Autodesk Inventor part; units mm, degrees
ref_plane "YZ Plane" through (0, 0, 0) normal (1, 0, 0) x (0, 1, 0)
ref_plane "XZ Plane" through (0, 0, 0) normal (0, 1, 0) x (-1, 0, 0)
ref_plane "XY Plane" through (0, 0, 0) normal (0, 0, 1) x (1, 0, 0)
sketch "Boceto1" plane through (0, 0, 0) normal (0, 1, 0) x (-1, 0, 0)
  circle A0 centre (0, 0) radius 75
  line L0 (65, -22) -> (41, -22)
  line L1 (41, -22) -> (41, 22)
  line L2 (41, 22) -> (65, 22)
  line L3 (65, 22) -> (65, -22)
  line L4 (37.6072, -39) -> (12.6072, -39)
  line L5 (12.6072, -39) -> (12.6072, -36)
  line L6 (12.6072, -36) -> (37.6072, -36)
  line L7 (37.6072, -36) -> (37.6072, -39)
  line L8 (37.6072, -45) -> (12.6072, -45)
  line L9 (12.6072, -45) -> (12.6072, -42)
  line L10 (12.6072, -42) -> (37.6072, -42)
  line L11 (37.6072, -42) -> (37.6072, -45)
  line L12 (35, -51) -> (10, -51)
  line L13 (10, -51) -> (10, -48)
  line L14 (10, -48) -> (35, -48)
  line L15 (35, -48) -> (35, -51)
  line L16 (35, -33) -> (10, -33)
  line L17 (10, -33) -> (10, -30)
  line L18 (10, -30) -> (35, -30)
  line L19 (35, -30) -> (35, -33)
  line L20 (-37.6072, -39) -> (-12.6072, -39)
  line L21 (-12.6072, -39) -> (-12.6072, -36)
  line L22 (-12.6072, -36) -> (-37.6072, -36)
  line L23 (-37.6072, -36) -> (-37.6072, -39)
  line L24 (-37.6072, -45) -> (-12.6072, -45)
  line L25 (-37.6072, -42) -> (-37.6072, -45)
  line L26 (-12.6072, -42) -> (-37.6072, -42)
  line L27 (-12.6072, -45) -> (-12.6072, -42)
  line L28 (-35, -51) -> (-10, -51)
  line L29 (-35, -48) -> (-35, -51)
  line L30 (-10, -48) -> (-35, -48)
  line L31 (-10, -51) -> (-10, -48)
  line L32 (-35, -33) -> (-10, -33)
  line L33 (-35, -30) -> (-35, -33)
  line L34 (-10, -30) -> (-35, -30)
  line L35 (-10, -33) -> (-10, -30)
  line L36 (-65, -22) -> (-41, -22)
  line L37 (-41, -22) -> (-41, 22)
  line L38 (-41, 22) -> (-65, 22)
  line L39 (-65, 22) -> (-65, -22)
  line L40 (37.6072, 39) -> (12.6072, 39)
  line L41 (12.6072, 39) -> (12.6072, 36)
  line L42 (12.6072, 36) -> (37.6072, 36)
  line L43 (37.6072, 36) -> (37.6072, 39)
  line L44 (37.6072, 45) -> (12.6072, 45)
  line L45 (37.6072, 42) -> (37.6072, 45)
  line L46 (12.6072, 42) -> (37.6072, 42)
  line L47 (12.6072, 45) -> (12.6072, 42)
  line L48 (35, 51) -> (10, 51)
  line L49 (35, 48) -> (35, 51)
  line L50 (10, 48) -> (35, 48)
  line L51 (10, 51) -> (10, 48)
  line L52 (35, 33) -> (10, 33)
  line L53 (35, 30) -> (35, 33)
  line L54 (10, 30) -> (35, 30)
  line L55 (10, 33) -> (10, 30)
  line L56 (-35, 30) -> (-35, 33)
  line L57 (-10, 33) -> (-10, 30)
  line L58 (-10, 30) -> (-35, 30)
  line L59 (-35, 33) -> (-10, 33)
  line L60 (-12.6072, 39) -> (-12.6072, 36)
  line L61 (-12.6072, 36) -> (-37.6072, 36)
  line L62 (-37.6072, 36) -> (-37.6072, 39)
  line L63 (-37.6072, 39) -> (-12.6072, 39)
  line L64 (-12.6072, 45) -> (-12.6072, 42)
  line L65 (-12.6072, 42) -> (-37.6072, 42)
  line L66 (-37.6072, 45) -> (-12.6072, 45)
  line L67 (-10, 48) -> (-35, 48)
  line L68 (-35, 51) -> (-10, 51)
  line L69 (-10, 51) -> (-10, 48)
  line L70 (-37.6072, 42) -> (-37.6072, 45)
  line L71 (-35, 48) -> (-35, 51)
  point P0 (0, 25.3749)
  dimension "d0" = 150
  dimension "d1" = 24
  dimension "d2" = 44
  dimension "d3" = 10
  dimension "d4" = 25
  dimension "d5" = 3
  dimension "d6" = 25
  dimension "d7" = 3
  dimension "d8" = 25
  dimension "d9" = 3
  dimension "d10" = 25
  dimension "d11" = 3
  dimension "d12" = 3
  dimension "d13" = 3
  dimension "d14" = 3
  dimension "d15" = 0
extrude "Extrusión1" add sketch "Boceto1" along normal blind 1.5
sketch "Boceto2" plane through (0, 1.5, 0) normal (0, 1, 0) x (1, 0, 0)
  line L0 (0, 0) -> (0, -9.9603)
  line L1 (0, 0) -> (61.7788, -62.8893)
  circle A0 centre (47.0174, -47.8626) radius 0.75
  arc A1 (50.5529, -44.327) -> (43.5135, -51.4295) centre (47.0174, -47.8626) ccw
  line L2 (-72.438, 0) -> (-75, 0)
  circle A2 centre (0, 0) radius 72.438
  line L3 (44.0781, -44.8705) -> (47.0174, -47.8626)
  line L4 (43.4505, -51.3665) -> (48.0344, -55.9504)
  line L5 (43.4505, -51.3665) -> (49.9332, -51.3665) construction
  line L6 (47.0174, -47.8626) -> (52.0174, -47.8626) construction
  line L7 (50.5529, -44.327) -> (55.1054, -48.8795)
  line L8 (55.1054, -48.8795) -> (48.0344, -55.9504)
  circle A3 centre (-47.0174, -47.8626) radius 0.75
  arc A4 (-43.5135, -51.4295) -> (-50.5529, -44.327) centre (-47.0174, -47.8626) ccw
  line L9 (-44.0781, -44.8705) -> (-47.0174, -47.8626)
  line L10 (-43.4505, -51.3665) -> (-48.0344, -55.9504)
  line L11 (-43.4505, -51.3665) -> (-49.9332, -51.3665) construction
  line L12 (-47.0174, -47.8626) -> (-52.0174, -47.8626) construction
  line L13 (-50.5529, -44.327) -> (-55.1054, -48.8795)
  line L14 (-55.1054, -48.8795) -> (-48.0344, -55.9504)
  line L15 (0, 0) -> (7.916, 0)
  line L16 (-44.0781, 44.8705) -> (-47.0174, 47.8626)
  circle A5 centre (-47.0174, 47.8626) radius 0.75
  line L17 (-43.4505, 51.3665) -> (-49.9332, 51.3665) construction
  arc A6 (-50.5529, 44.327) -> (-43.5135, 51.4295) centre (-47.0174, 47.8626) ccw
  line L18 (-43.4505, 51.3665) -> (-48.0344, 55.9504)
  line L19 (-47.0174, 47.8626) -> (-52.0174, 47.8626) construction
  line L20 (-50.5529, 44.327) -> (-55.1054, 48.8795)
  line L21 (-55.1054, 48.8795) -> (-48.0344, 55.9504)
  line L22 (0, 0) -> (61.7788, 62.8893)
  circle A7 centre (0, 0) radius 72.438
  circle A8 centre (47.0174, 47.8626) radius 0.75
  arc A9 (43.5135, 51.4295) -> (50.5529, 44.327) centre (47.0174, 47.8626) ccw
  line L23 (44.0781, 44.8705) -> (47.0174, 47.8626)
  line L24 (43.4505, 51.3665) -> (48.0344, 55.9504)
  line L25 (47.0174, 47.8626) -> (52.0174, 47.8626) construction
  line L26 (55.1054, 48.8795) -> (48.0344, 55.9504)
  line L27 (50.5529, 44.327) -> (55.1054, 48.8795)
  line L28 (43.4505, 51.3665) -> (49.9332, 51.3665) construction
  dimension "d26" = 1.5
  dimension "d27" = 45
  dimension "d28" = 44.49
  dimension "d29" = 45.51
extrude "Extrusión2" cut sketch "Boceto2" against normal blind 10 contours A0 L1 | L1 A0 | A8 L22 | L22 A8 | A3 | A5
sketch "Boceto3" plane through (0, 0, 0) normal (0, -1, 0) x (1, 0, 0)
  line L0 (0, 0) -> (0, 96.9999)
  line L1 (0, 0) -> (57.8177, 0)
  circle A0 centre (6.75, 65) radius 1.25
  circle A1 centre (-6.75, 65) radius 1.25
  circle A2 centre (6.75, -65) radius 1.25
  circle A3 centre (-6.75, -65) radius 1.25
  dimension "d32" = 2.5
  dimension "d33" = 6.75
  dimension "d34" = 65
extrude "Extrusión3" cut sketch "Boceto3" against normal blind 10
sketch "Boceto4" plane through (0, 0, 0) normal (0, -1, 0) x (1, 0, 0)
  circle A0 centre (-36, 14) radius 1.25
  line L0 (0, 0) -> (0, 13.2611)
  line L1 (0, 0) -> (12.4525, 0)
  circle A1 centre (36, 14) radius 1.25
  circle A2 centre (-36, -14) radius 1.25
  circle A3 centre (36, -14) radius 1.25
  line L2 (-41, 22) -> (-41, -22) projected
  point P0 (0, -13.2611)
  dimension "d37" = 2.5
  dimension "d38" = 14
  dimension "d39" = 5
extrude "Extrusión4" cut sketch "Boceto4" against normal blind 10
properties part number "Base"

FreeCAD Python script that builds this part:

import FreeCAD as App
import Part
import Sketcher
from FreeCAD import Vector


def add_polygon(sketch, points):
    """Adds a closed chain of lines whose ends are joined by coincident constraints."""
    first, n = sketch.GeometryCount, len(points)
    for a, b in zip(points, points[1:] + points[:1]):
        sketch.addGeometry(Part.LineSegment(App.Vector(*a, 0), App.Vector(*b, 0)), False)
    for i in range(n):
        sketch.addConstraint(Sketcher.Constraint("Coincident", first + i, 2, first + (i + 1) % n, 1))

doc = App.newDocument("Part")
body = doc.addObject("PartDesign::Body", "Body")

# Sketch on XZ plane
sketch1 = doc.addObject("Sketcher::SketchObject", "Sketch")
body.addObject(sketch1)
sketch1.AttachmentSupport = (doc.XZ_Plane, [""])
sketch1.MapMode = "FlatFace"
sketch1.addGeometry(Part.Circle(Vector(0, 0, 0), Vector(0, 0, 1), 75), False)  # 0
add_polygon(sketch1, [(10, -51), (35, -51), (35, -48), (10, -48)])  # lines 1-4
add_polygon(sketch1, [(12.6, -45), (37.6, -45), (37.6, -42), (12.6, -42)])  # lines 5-8
add_polygon(sketch1, [(12.6, -39), (37.6, -39), (37.6, -36), (12.6, -36)])  # lines 9-12
add_polygon(sketch1, [(10, -33), (35, -33), (35, -30), (10, -30)])  # lines 13-16
add_polygon(sketch1, [(-35, -48), (-35, -51), (-10, -51), (-10, -48)])  # lines 17-20
add_polygon(sketch1, [(-37.6, -42), (-37.6, -45), (-12.6, -45), (-12.6, -42)])  # lines 21-24
add_polygon(sketch1, [(-37.6, -36), (-37.6, -39), (-12.6, -39), (-12.6, -36)])  # lines 25-28
add_polygon(sketch1, [(-35, -30), (-35, -33), (-10, -33), (-10, -30)])  # lines 29-32
add_polygon(sketch1, [(41, -22), (65, -22), (65, 22), (41, 22)])  # lines 33-36
add_polygon(sketch1, [(10, 30), (35, 30), (35, 33), (10, 33)])  # lines 37-40
add_polygon(sketch1, [(37.6, 39), (12.6, 39), (12.6, 36), (37.6, 36)])  # lines 41-44
add_polygon(sketch1, [(37.6, 45), (12.6, 45), (12.6, 42), (37.6, 42)])  # lines 45-48
add_polygon(sketch1, [(10, 51), (10, 48), (35, 48), (35, 51)])  # lines 49-52
add_polygon(sketch1, [(-10, 33), (-35, 33), (-35, 30), (-10, 30)])  # lines 53-56
add_polygon(sketch1, [(-65, 22), (-65, -22), (-41, -22), (-41, 22)])  # lines 57-60
add_polygon(sketch1, [(-12.6, 39), (-37.6, 39), (-37.6, 36), (-12.6, 36)])  # lines 61-64
add_polygon(sketch1, [(-12.6, 45), (-37.6, 45), (-37.6, 42), (-12.6, 42)])  # lines 65-68
add_polygon(sketch1, [(-10, 51), (-35, 51), (-35, 48), (-10, 48)])  # lines 69-72
sketch1.addConstraint([
    Sketcher.Constraint("Horizontal", 1),
    Sketcher.Constraint("Vertical", 2),
    Sketcher.Constraint("Horizontal", 3),
    Sketcher.Constraint("Vertical", 4),
    Sketcher.Constraint("Horizontal", 5),
    Sketcher.Constraint("Vertical", 6),
    Sketcher.Constraint("Horizontal", 7),
    Sketcher.Constraint("Vertical", 8),
    Sketcher.Constraint("Horizontal", 9),
    Sketcher.Constraint("Vertical", 10),
    Sketcher.Constraint("Horizontal", 11),
    Sketcher.Constraint("Vertical", 12),
    Sketcher.Constraint("Horizontal", 13),
    Sketcher.Constraint("Vertical", 14),
    Sketcher.Constraint("Horizontal", 15),
    Sketcher.Constraint("Vertical", 16),
    Sketcher.Constraint("Vertical", 17),
    Sketcher.Constraint("Horizontal", 18),
    Sketcher.Constraint("Vertical", 19),
    Sketcher.Constraint("Horizontal", 20),
    Sketcher.Constraint("Vertical", 21),
    Sketcher.Constraint("Horizontal", 22),
    Sketcher.Constraint("Vertical", 23),
    Sketcher.Constraint("Horizontal", 24),
    Sketcher.Constraint("Vertical", 25),
    Sketcher.Constraint("Horizontal", 26),
    Sketcher.Constraint("Vertical", 27),
    Sketcher.Constraint("Horizontal", 28),
    Sketcher.Constraint("Vertical", 29),
    Sketcher.Constraint("Horizontal", 30),
    Sketcher.Constraint("Vertical", 31),
    Sketcher.Constraint("Horizontal", 32),
    Sketcher.Constraint("Horizontal", 33),
    Sketcher.Constraint("Vertical", 34),
    Sketcher.Constraint("Horizontal", 35),
    Sketcher.Constraint("Vertical", 36),
    Sketcher.Constraint("Horizontal", 37),
    Sketcher.Constraint("Vertical", 38),
    Sketcher.Constraint("Horizontal", 39),
    Sketcher.Constraint("Vertical", 40),
    Sketcher.Constraint("Horizontal", 41),
    Sketcher.Constraint("Vertical", 42),
    Sketcher.Constraint("Horizontal", 43),
    Sketcher.Constraint("Vertical", 44),
    Sketcher.Constraint("Horizontal", 45),
    Sketcher.Constraint("Vertical", 46),
    Sketcher.Constraint("Horizontal", 47),
    Sketcher.Constraint("Vertical", 48),
    Sketcher.Constraint("Vertical", 49),
    Sketcher.Constraint("Horizontal", 50),
    Sketcher.Constraint("Vertical", 51),
    Sketcher.Constraint("Horizontal", 52),
    Sketcher.Constraint("Horizontal", 53),
    Sketcher.Constraint("Vertical", 54),
    Sketcher.Constraint("Horizontal", 55),
    Sketcher.Constraint("Vertical", 56),
    Sketcher.Constraint("Vertical", 57),
    Sketcher.Constraint("Horizontal", 58),
    Sketcher.Constraint("Vertical", 59),
    Sketcher.Constraint("Horizontal", 60),
    Sketcher.Constraint("Horizontal", 61),
    Sketcher.Constraint("Vertical", 62),
    Sketcher.Constraint("Horizontal", 63),
    Sketcher.Constraint("Vertical", 64),
    Sketcher.Constraint("Horizontal", 65),
    Sketcher.Constraint("Vertical", 66),
    Sketcher.Constraint("Horizontal", 67),
    Sketcher.Constraint("Vertical", 68),
    Sketcher.Constraint("Horizontal", 69),
    Sketcher.Constraint("Vertical", 70),
    Sketcher.Constraint("Horizontal", 71),
    Sketcher.Constraint("Vertical", 72),
    Sketcher.Constraint("Coincident", 0, 3, -1, 1),
    Sketcher.Constraint("Symmetric", 32, 2, 37, 2, -1, 1),
    Sketcher.Constraint("Symmetric", 30, 2, 39, 2, -1, 1),
    Sketcher.Constraint("Symmetric", 26, 2, 41, 2, -1, 1),
    Sketcher.Constraint("Symmetric", 28, 2, 43, 2, -1, 1),
    Sketcher.Constraint("Symmetric", 22, 2, 45, 2, -1, 1),
    Sketcher.Constraint("Symmetric", 24, 2, 47, 2, -1, 1),
    Sketcher.Constraint("Symmetric", 19, 2, 49, 2, -1, 1),
    Sketcher.Constraint("Symmetric", 17, 2, 51, 2, -1, 1),
    Sketcher.Constraint("Symmetric", 13, 2, 53, 2, -1, 1),
    Sketcher.Constraint("Symmetric", 15, 2, 55, 2, -1, 1),
    Sketcher.Constraint("Symmetric", 34, 2, 57, 2, -1, 1),
    Sketcher.Constraint("Symmetric", 36, 2, 59, 2, -1, 1),
    Sketcher.Constraint("Symmetric", 9, 2, 61, 2, -1, 1),
    Sketcher.Constraint("Symmetric", 11, 2, 63, 2, -1, 1),
    Sketcher.Constraint("Symmetric", 5, 2, 65, 2, -1, 1),
    Sketcher.Constraint("Symmetric", 7, 2, 67, 2, -1, 1),
    Sketcher.Constraint("Symmetric", 1, 2, 69, 2, -1, 1),
    Sketcher.Constraint("Symmetric", 3, 2, 71, 2, -1, 1),
    Sketcher.Constraint("Symmetric", 1, 2, 17, 2, -2),
    Sketcher.Constraint("Symmetric", 3, 2, 19, 2, -2),
    Sketcher.Constraint("Symmetric", 5, 2, 21, 2, -2),
    Sketcher.Constraint("Symmetric", 7, 2, 23, 2, -2),
    Sketcher.Constraint("Symmetric", 9, 2, 25, 2, -2),
    Sketcher.Constraint("Symmetric", 11, 2, 27, 2, -2),
    Sketcher.Constraint("Symmetric", 13, 2, 29, 2, -2),
    Sketcher.Constraint("Symmetric", 15, 2, 31, 2, -2),
    Sketcher.Constraint("Horizontal", 36, 2, 57, 2),
    Sketcher.Constraint("Vertical", 6, 2, 9, 2),
    Sketcher.Constraint("Vertical", 8, 2, 11, 2),
    Sketcher.Constraint("Vertical", 2, 2, 13, 2),
    Sketcher.Constraint("Vertical", 4, 2, 15, 2),
    Sketcher.Constraint("Equal", 3, 5),
    Sketcher.Constraint("Equal", 4, 6),
    Sketcher.Constraint("Equal", 8, 10),
    Sketcher.Constraint("Equal", 12, 14),
    Sketcher.Constraint("Diameter", 0, 150.0),
    Sketcher.Constraint("DistanceX", 1, 1, 1, 2, 25.0),
    Sketcher.Constraint("DistanceX", 33, 1, 33, 2, 24.0),
    Sketcher.Constraint("DistanceY", 2, 1, 2, 2, 3.0),
    Sketcher.Constraint("DistanceY", 34, 1, 34, 2, 44.0),
    Sketcher.Constraint("DistanceX", -1, 1, 3, 2, 10.0),
    Sketcher.Constraint("DistanceY", 1, 2, -1, 1, 51.0),
    Sketcher.Constraint("DistanceY", 5, 2, -1, 1, 45.0),
    Sketcher.Constraint("DistanceY", 9, 2, -1, 1, 39.0),
    Sketcher.Constraint("DistanceY", 13, 2, -1, 1, 33.0),
    Sketcher.Constraint("DistanceX", -1, 1, 33, 2, 65.0),
    Sketcher.Constraint("DistanceX", -1, 1, 5, 2, 37.6072),
])
pad1 = doc.addObject("PartDesign::Pad", "Pad")
body.addObject(pad1)
pad1.Profile = sketch1
pad1.Length = 1.5
pad1.Reversed = True

# Sketch on XZ plane
sketch2 = doc.addObject("Sketcher::SketchObject", "Sketch001")
body.addObject(sketch2)
sketch2.AttachmentSupport = (doc.XZ_Plane, [""])
sketch2.MapMode = "FlatFace"
sketch2.AttachmentOffset = App.Placement(Vector(0, 0, -1.5), App.Rotation())
sketch2.addGeometry([
    Part.Circle(Vector(47, 47.9, 0), Vector(0, 0, 1), 0.8),
    Part.Circle(Vector(47, -47.9, 0), Vector(0, 0, 1), 0.8),
    Part.Circle(Vector(-47, 47.9, 0), Vector(0, 0, 1), 0.8),
    Part.Circle(Vector(-47, -47.9, 0), Vector(0, 0, 1), 0.8),
], False)
sketch2.addConstraint([
    Sketcher.Constraint("Equal", 0, 1),
    Sketcher.Constraint("Equal", 1, 2),
    Sketcher.Constraint("Equal", 2, 3),
    Sketcher.Constraint("Symmetric", 1, 3, 2, 3, -1, 1),
    Sketcher.Constraint("Symmetric", 0, 3, 3, 3, -1, 1),
    Sketcher.Constraint("Symmetric", 0, 3, 2, 3, -2),
    Sketcher.Constraint("Diameter", 0, 1.5),
    Sketcher.Constraint("DistanceX", -1, 1, 0, 3, 47.0174),
    Sketcher.Constraint("DistanceY", -1, 1, 0, 3, 47.8626),
])
pocket1 = doc.addObject("PartDesign::Pocket", "Pocket")
body.addObject(pocket1)
pocket1.Profile = sketch2
pocket1.Length = 10
pocket1.Reversed = True

# Sketch on XZ plane
sketch3 = doc.addObject("Sketcher::SketchObject", "Sketch002")
body.addObject(sketch3)
sketch3.AttachmentSupport = (doc.XZ_Plane, [""])
sketch3.MapMode = "FlatFace"
sketch3.addGeometry([
    Part.Circle(Vector(6.8, 65, 0), Vector(0, 0, 1), 1.2),
    Part.Circle(Vector(-6.8, 65, 0), Vector(0, 0, 1), 1.2),
    Part.Circle(Vector(6.8, -65, 0), Vector(0, 0, 1), 1.2),
    Part.Circle(Vector(-6.8, -65, 0), Vector(0, 0, 1), 1.2),
], False)
sketch3.addConstraint([
    Sketcher.Constraint("Equal", 0, 1),
    Sketcher.Constraint("Equal", 1, 2),
    Sketcher.Constraint("Equal", 2, 3),
    Sketcher.Constraint("Symmetric", 1, 3, 2, 3, -1, 1),
    Sketcher.Constraint("Symmetric", 0, 3, 3, 3, -1, 1),
    Sketcher.Constraint("Symmetric", 0, 3, 1, 3, -2),
    Sketcher.Constraint("Diameter", 0, 2.5),
    Sketcher.Constraint("DistanceY", -1, 1, 0, 3, 65.0),
    Sketcher.Constraint("DistanceX", -1, 1, 0, 3, 6.75),
])
pocket2 = doc.addObject("PartDesign::Pocket", "Pocket001")
body.addObject(pocket2)
pocket2.Profile = sketch3
pocket2.Length = 10

# Sketch on XZ plane
sketch4 = doc.addObject("Sketcher::SketchObject", "Sketch003")
body.addObject(sketch4)
sketch4.AttachmentSupport = (doc.XZ_Plane, [""])
sketch4.MapMode = "FlatFace"
sketch4.addGeometry([
    Part.Circle(Vector(-36, 14, 0), Vector(0, 0, 1), 1.2),
    Part.Circle(Vector(36, 14, 0), Vector(0, 0, 1), 1.2),
    Part.Circle(Vector(-36, -14, 0), Vector(0, 0, 1), 1.2),
    Part.Circle(Vector(36, -14, 0), Vector(0, 0, 1), 1.2),
], False)
sketch4.addConstraint([
    Sketcher.Constraint("Equal", 0, 1),
    Sketcher.Constraint("Equal", 1, 2),
    Sketcher.Constraint("Equal", 2, 3),
    Sketcher.Constraint("Symmetric", 1, 3, 2, 3, -1, 1),
    Sketcher.Constraint("Symmetric", 0, 3, 3, 3, -1, 1),
    Sketcher.Constraint("Symmetric", 0, 3, 1, 3, -2),
    Sketcher.Constraint("Diameter", 0, 2.5),
    Sketcher.Constraint("DistanceY", -1, 1, 0, 3, 14.0),
    Sketcher.Constraint("DistanceX", 0, 3, -1, 1, 36.0),
])
pocket3 = doc.addObject("PartDesign::Pocket", "Pocket002")
body.addObject(pocket3)
pocket3.Profile = sketch4
pocket3.Length = 10

doc.recompute()
